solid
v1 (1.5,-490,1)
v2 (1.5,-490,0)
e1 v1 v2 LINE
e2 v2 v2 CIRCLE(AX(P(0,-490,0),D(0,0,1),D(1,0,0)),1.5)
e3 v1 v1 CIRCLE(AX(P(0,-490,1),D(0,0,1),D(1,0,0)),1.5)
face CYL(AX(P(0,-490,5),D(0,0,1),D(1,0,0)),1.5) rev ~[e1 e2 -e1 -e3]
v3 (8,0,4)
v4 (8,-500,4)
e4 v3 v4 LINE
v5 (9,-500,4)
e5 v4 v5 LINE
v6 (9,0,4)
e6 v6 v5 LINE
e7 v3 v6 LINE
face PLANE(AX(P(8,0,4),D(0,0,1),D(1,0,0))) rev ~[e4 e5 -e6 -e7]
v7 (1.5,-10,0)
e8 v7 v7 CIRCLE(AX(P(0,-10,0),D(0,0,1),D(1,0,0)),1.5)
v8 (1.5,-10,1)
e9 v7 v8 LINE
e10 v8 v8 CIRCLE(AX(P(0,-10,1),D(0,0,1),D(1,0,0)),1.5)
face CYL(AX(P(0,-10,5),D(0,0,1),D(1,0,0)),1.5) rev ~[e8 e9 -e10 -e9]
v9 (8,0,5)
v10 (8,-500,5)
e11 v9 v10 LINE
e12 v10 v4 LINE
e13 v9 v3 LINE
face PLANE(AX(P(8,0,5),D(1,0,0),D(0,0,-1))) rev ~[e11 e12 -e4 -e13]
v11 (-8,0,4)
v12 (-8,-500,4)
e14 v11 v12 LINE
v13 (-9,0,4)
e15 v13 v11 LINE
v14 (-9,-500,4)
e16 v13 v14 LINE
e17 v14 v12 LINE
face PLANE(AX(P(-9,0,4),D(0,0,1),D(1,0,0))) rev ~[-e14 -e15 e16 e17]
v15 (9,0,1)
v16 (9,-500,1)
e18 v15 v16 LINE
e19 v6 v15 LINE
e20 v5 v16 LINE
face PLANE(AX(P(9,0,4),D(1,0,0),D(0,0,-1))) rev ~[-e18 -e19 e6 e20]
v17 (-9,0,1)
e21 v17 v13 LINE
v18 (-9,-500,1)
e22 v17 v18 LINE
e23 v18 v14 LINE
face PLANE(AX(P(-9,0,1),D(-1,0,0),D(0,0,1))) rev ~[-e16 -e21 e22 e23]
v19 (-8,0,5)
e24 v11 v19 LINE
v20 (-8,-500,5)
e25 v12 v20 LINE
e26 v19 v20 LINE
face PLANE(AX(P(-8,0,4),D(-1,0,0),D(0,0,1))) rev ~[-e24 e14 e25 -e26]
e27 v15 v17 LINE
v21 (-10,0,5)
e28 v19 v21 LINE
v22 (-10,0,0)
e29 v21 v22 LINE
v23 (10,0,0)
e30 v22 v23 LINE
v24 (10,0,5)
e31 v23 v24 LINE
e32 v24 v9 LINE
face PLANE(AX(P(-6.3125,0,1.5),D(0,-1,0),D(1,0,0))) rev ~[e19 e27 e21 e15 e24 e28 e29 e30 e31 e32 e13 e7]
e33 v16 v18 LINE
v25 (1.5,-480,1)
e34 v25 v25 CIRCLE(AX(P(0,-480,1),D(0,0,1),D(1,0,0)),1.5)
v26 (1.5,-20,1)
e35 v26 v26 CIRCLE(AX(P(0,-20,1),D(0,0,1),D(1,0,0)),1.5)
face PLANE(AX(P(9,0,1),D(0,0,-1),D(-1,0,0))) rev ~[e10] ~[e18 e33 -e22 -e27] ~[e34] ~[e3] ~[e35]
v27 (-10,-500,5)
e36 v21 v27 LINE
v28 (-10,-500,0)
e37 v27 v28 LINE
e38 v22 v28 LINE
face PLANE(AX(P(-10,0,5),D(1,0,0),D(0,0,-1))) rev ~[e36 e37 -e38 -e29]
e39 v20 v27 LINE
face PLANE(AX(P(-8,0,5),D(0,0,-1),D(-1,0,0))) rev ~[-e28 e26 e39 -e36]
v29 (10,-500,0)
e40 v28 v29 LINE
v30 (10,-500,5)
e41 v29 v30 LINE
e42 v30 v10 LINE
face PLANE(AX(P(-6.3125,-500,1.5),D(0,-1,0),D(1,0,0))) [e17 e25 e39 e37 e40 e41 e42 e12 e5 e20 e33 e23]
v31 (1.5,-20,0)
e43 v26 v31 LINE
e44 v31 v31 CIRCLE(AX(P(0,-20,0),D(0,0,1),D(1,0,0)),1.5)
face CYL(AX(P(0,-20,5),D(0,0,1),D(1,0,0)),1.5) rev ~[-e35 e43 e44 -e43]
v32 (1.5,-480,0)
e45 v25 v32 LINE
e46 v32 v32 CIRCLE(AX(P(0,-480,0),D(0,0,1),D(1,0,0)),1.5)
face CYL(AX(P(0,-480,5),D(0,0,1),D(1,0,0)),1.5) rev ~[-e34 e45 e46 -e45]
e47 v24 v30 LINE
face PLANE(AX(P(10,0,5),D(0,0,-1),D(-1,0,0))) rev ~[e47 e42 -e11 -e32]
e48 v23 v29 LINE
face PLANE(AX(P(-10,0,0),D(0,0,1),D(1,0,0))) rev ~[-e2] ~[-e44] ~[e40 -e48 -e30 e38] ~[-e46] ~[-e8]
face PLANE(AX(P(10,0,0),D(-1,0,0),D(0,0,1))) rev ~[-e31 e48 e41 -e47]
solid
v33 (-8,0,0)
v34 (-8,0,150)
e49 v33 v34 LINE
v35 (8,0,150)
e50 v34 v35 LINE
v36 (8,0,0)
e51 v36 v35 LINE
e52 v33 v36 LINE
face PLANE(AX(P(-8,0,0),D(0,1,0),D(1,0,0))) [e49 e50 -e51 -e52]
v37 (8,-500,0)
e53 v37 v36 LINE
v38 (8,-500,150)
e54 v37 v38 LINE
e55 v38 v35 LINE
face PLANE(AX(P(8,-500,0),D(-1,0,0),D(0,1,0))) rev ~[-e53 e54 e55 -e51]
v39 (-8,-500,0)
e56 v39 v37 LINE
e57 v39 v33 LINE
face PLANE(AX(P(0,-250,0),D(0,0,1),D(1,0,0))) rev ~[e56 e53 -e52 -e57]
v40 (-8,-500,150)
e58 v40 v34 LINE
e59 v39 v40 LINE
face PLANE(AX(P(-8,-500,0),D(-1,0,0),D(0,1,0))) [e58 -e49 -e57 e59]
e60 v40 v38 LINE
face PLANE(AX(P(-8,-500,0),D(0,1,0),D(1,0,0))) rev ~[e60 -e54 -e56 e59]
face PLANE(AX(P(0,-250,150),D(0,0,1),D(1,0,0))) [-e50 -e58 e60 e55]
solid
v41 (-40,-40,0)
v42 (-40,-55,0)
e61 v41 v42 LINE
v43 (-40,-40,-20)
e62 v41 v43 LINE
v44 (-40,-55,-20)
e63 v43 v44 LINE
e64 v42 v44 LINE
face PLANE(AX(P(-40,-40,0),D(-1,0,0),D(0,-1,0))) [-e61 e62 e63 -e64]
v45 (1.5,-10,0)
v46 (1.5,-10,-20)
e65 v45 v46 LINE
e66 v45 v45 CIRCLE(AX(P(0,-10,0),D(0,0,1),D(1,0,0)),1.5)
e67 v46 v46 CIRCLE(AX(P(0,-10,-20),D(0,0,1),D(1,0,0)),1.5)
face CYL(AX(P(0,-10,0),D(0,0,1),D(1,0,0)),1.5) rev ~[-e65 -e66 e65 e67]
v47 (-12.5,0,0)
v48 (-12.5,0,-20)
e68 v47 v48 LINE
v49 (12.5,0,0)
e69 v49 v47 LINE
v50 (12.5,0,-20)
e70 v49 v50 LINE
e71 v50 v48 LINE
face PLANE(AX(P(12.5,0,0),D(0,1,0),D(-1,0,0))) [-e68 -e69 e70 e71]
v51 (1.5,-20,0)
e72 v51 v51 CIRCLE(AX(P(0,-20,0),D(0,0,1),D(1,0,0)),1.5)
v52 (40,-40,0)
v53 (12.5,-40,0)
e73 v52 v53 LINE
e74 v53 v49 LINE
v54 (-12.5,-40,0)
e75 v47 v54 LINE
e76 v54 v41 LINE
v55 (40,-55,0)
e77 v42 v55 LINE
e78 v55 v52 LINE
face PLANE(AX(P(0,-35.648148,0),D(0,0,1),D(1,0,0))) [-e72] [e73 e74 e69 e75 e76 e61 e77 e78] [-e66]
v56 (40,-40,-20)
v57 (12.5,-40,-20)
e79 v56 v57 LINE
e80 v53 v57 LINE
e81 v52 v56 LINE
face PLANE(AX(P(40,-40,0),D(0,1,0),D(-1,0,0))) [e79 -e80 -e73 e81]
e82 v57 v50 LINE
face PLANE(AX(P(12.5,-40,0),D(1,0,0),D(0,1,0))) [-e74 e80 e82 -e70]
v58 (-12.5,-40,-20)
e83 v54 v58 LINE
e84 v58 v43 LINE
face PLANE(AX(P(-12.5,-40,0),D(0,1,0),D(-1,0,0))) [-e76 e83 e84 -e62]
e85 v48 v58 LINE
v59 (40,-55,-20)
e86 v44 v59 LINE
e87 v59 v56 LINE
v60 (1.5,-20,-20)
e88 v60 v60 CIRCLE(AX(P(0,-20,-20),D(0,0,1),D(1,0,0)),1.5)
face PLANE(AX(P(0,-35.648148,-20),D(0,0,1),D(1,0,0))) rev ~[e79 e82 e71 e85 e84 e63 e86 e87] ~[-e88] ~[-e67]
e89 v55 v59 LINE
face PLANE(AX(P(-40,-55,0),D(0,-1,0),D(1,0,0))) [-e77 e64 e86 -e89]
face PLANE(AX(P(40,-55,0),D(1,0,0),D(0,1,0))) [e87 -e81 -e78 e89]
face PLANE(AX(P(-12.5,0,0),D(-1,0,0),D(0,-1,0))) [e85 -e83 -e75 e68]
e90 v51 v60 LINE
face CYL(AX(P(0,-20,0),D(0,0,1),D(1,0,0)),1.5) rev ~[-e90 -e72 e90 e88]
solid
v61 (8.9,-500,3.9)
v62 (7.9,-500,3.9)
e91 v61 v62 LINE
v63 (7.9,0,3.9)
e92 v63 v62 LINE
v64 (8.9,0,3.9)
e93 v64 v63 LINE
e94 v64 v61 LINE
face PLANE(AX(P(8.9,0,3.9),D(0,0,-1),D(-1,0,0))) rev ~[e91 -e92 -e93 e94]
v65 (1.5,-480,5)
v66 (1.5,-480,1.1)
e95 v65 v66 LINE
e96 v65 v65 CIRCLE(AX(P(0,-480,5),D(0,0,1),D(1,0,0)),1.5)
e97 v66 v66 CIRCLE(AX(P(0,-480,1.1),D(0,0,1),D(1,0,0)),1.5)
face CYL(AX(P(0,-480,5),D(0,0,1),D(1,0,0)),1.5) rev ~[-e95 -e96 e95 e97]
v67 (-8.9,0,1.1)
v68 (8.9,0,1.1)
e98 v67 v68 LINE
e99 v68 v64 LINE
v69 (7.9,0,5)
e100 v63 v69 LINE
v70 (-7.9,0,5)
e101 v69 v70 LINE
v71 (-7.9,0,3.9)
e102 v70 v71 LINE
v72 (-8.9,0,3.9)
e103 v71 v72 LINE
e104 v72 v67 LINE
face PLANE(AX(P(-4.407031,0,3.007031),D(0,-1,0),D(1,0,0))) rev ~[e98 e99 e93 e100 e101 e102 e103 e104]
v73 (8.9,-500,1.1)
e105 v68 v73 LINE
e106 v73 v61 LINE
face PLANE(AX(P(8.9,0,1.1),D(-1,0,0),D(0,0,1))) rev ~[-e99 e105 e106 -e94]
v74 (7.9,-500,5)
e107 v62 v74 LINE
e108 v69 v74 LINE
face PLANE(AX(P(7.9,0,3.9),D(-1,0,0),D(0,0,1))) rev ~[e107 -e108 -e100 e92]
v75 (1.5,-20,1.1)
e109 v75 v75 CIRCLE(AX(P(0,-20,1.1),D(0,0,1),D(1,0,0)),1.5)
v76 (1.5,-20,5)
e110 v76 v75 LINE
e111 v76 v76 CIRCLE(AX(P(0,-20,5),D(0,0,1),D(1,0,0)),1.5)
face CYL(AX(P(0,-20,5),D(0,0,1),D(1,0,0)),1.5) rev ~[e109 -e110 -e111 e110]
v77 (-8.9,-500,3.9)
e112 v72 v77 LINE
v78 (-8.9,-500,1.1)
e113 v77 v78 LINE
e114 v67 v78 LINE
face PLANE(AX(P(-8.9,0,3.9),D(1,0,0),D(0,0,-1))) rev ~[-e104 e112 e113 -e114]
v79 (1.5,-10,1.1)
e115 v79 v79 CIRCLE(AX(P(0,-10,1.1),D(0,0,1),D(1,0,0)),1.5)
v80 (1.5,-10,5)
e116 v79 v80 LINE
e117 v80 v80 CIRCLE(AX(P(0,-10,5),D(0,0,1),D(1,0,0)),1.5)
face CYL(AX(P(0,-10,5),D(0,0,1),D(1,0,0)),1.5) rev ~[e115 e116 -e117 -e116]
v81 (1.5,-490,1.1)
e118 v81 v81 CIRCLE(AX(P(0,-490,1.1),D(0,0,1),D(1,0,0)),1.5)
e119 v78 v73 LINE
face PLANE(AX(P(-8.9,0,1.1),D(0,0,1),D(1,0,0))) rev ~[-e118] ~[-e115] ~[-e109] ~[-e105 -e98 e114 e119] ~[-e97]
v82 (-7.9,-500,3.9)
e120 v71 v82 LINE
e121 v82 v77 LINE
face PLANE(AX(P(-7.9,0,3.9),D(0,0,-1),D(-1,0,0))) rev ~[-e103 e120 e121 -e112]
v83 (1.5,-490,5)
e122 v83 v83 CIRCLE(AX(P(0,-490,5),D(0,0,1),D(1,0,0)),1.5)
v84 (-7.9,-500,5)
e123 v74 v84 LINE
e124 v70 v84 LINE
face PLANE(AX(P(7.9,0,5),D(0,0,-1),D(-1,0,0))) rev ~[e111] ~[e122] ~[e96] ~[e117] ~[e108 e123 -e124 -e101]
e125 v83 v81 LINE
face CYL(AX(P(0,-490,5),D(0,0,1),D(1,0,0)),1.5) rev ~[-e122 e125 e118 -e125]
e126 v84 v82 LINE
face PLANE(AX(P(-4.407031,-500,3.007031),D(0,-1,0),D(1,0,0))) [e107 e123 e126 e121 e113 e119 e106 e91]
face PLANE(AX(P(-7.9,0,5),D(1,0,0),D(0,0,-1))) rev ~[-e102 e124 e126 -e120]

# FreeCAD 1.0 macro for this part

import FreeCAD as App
import Part
import Sketcher

V = App.Vector


def add_polygon(sketch, points):
    """Adds a closed chain of lines whose ends are joined by coincident constraints."""
    first, n = sketch.GeometryCount, len(points)
    for a, b in zip(points, points[1:] + points[:1]):
        sketch.addGeometry(Part.LineSegment(App.Vector(*a, 0), App.Vector(*b, 0)), False)
    for i in range(n):
        sketch.addConstraint(Sketcher.Constraint("Coincident", first + i, 2, first + (i + 1) % n, 1))

doc = App.newDocument("Part")
params = doc.addObject("Spreadsheet::Sheet", "Params")
for row, (alias, value) in enumerate([
    ("sketch1_width", "2 mm"),
    ("sketch1_width2", "20 mm"),
    ("sketch1_width3", "1 mm"),
    ("sketch1_height", "5 mm"),
    ("sketch1_height2", "3 mm"),
    ("pad1_length", "500 mm"),
    ("sketch2_width", "1 mm"),
    ("sketch2_width2", "17.8 mm"),
    ("sketch2_height", "1.1 mm"),
    ("sketch2_height2", "2.8 mm"),
    ("pad2_length", "500 mm"),
    ("sketch3_diameter", "3 mm"),
    ("pad3_length", "15 mm"),
    ("sketch4_width", "16 mm"),
    ("sketch4_height", "500 mm"),
    ("pad4_length", "150 mm"),
    ("sketch5_diameter", "3 mm"),
    ("sketch5_width", "25 mm"),
    ("sketch5_width2", "80 mm"),
    ("sketch5_height", "15 mm"),
    ("sketch5_height2", "40 mm"),
    ("pad5_length", "20 mm"),
], start=1):
    params.set(f"A{row}", alias)
    params.set(f"B{row}", "=" + value)
    params.setAlias(f"B{row}", alias)

body = doc.addObject("PartDesign::Body", "Body")

sketch1 = doc.addObject("Sketcher::SketchObject", "Sketch")
body.addObject(sketch1)
sketch1.AttachmentSupport = (doc.XZ_Plane, [""])
sketch1.MapMode = "FlatFace"
add_polygon(sketch1, [(-8, 4), (-8, 5), (-10, 5), (-10, 0), (10, 0), (10, 5), (8, 5), (8, 4), (9, 4), (9, 1), (-9, 1), (-9, 4)])
sketch1.addConstraint([
    Sketcher.Constraint("Vertical", 0),
    Sketcher.Constraint("Horizontal", 1),
    Sketcher.Constraint("Vertical", 2),
    Sketcher.Constraint("Horizontal", 3),
    Sketcher.Constraint("Vertical", 4),
    Sketcher.Constraint("Horizontal", 5),
    Sketcher.Constraint("Vertical", 6),
    Sketcher.Constraint("Horizontal", 7),
    Sketcher.Constraint("Vertical", 8),
    Sketcher.Constraint("Horizontal", 9),
    Sketcher.Constraint("Vertical", 10),
    Sketcher.Constraint("Horizontal", 11),
    Sketcher.Constraint("Symmetric", 2, 2, 3, 2, -1, 1),
    Sketcher.Constraint("Symmetric", 0, 2, 5, 2, -2),
    Sketcher.Constraint("Symmetric", 7, 2, 10, 2, -2),
    Sketcher.Constraint("Equal", 11, 0),
    Sketcher.Constraint("DistanceX", 1, 2, 1, 1, 2.0),
    Sketcher.Constraint("DistanceX", 3, 1, 3, 2, 20.0),
    Sketcher.Constraint("DistanceX", 7, 1, 7, 2, 1.0),
    Sketcher.Constraint("DistanceY", 2, 2, 2, 1, 5.0),
    Sketcher.Constraint("DistanceY", 8, 2, 8, 1, 3.0),
])
sketch1.setExpression("Constraints[28]", "Params.sketch1_width")
sketch1.setExpression("Constraints[29]", "Params.sketch1_width2")
sketch1.setExpression("Constraints[30]", "Params.sketch1_width3")
sketch1.setExpression("Constraints[31]", "Params.sketch1_height")
sketch1.setExpression("Constraints[32]", "Params.sketch1_height2")
pad1 = doc.addObject("PartDesign::Pad", "Pad")
body.addObject(pad1)
pad1.Profile = sketch1
pad1.setExpression("Length", "Params.pad1_length")
body2 = doc.addObject("PartDesign::Body", "Body001")

sketch2 = doc.addObject("Sketcher::SketchObject", "Sketch001")
body2.addObject(sketch2)
sketch2.AttachmentSupport = (doc.getObject("XZ_Plane001"), [""])
sketch2.MapMode = "FlatFace"
add_polygon(sketch2, [(-7.9, 5), (-7.9, 3.9), (-8.9, 3.9), (-8.9, 1.1), (8.9, 1.1), (8.9, 3.9), (7.9, 3.9), (7.9, 5)])
sketch2.addConstraint([
    Sketcher.Constraint("Vertical", 0),
    Sketcher.Constraint("Horizontal", 1),
    Sketcher.Constraint("Vertical", 2),
    Sketcher.Constraint("Horizontal", 3),
    Sketcher.Constraint("Vertical", 4),
    Sketcher.Constraint("Horizontal", 5),
    Sketcher.Constraint("Vertical", 6),
    Sketcher.Constraint("Horizontal", 7),
    Sketcher.Constraint("Symmetric", 1, 2, 4, 2, -2),
    Sketcher.Constraint("Equal", 1, 5),
    Sketcher.Constraint("DistanceX", 1, 2, 1, 1, 1.0),
    Sketcher.Constraint("DistanceX", 3, 1, 3, 2, 17.8),
    Sketcher.Constraint("DistanceY", 0, 2, 0, 1, 1.1),
    Sketcher.Constraint("DistanceY", 2, 2, 2, 1, 2.8),
    Sketcher.Constraint("DistanceY", -1, 1, 6, 2, 5.0),
])
sketch2.setExpression("Constraints[18]", "Params.sketch2_width")
sketch2.setExpression("Constraints[19]", "Params.sketch2_width2")
sketch2.setExpression("Constraints[20]", "Params.sketch2_height")
sketch2.setExpression("Constraints[21]", "Params.sketch2_height2")
pad2 = doc.addObject("PartDesign::Pad", "Pad001")
body2.addObject(pad2)
pad2.Profile = sketch2
pad2.setExpression("Length", "Params.pad2_length")
body3 = doc.addObject("PartDesign::Body", "Body002")
body3.AllowCompound = True

sketch3 = doc.addObject("Sketcher::SketchObject", "Sketch002")
body3.addObject(sketch3)
sketch3.AttachmentSupport = (doc.getObject("XY_Plane002"), [""])
sketch3.MapMode = "FlatFace"
sketch3.AttachmentOffset = App.Placement(V(0, 0, 5), App.Rotation())
sketch3.addGeometry([
    Part.Circle(V(0, -490, 0), V(0, 0, 1), 1.5),
    Part.Circle(V(0, -480, 0), V(0, 0, 1), 1.5),
    Part.Circle(V(0, -20, 0), V(0, 0, 1), 1.5),
    Part.Circle(V(0, -10, 0), V(0, 0, 1), 1.5),
], False)
sketch3.addConstraint([
    Sketcher.Constraint("Equal", 0, 1),
    Sketcher.Constraint("Equal", 1, 2),
    Sketcher.Constraint("Equal", 2, 3),
    Sketcher.Constraint("PointOnObject", 0, 3, -2),
    Sketcher.Constraint("PointOnObject", 1, 3, -2),
    Sketcher.Constraint("PointOnObject", 2, 3, -2),
    Sketcher.Constraint("PointOnObject", 3, 3, -2),
    Sketcher.Constraint("Diameter", 0, 3.0),
    Sketcher.Constraint("DistanceY", 0, 3, -1, 1, 490.0),
    Sketcher.Constraint("DistanceY", 1, 3, -1, 1, 480.0),
    Sketcher.Constraint("DistanceY", 2, 3, -1, 1, 20.0),
    Sketcher.Constraint("DistanceY", 3, 3, -1, 1, 10.0),
])
sketch3.setExpression("Constraints[7]", "Params.sketch3_diameter")
pad3 = doc.addObject("PartDesign::Pad", "Pad002")
body3.addObject(pad3)
pad3.Profile = sketch3
pad3.setExpression("Length", "Params.pad3_length")
pad3.Midplane = True
doc.recompute()

body4 = doc.addObject("PartDesign::Body", "Body003")
body4.BaseFeature = body3
boolean = doc.addObject("PartDesign::Boolean", "Boolean")
body2.addObject(boolean)
boolean.Type = "Cut"
boolean.addObjects([body4])
doc.recompute()

boolean2 = doc.addObject("PartDesign::Boolean", "Boolean001")
body.addObject(boolean2)
boolean2.Type = "Cut"
boolean2.addObjects([body3])
body5 = doc.addObject("PartDesign::Body", "Body004")

sketch4 = doc.addObject("Sketcher::SketchObject", "Sketch003")
body5.addObject(sketch4)
sketch4.AttachmentSupport = (doc.getObject("XY_Plane004"), [""])
sketch4.MapMode = "FlatFace"
add_polygon(sketch4, [(-8, 0), (-8, -500), (8, -500), (8, 0)])
sketch4.addConstraint([
    Sketcher.Constraint("Vertical", 0),
    Sketcher.Constraint("Horizontal", 1),
    Sketcher.Constraint("Vertical", 2),
    Sketcher.Constraint("Horizontal", 3),
    Sketcher.Constraint("Symmetric", 2, 2, 3, 2, -1, 1),
    Sketcher.Constraint("DistanceX", 1, 1, 1, 2, 16.0),
    Sketcher.Constraint("DistanceY", 0, 2, 0, 1, 500.0),
])
sketch4.setExpression("Constraints[9]", "Params.sketch4_width")
sketch4.setExpression("Constraints[10]", "Params.sketch4_height")
pad4 = doc.addObject("PartDesign::Pad", "Pad003")
body5.addObject(pad4)
pad4.Profile = sketch4
pad4.setExpression("Length", "Params.pad4_length")
body6 = doc.addObject("PartDesign::Body", "Body005")

sketch5 = doc.addObject("Sketcher::SketchObject", "Sketch004")
body6.addObject(sketch5)
sketch5.AttachmentSupport = (doc.getObject("XY_Plane005"), [""])
sketch5.MapMode = "FlatFace"
add_polygon(sketch5, [(40, -55), (40, -40), (12.5, -40), (12.5, 0), (-12.5, 0), (-12.5, -40), (-40, -40), (-40, -55)])
sketch5.addGeometry(Part.Circle(V(0, -20, 0), V(0, 0, 1), 1.5), False)
sketch5.addGeometry(Part.Circle(V(0, -10, 0), V(0, 0, 1), 1.5), False)
sketch5.addConstraint([
    Sketcher.Constraint("Vertical", 0),
    Sketcher.Constraint("Horizontal", 1),
    Sketcher.Constraint("Vertical", 2),
    Sketcher.Constraint("Horizontal", 3),
    Sketcher.Constraint("Vertical", 4),
    Sketcher.Constraint("Horizontal", 5),
    Sketcher.Constraint("Vertical", 6),
    Sketcher.Constraint("Horizontal", 7),
    Sketcher.Constraint("Equal", 8, 9),
    Sketcher.Constraint("Symmetric", 2, 2, 3, 2, -1, 1),
    Sketcher.Constraint("Symmetric", 0, 2, 5, 2, -2),
    Sketcher.Constraint("PointOnObject", 8, 3, -2),
    Sketcher.Constraint("PointOnObject", 9, 3, -2),
    Sketcher.Constraint("Diameter", 8, 3.0),
    Sketcher.Constraint("DistanceX", 3, 2, 3, 1, 25.0),
    Sketcher.Constraint("DistanceX", 7, 1, 7, 2, 80.0),
    Sketcher.Constraint("DistanceY", 0, 1, 0, 2, 15.0),
    Sketcher.Constraint("DistanceY", 2, 1, 2, 2, 40.0),
    Sketcher.Constraint("DistanceY", 8, 3, -1, 1, 20.0),
    Sketcher.Constraint("DistanceY", 9, 3, -1, 1, 10.0),
])
sketch5.setExpression("Constraints[21]", "Params.sketch5_diameter")
sketch5.setExpression("Constraints[22]", "Params.sketch5_width")
sketch5.setExpression("Constraints[23]", "Params.sketch5_width2")
sketch5.setExpression("Constraints[24]", "Params.sketch5_height")
sketch5.setExpression("Constraints[25]", "Params.sketch5_height2")
pad5 = doc.addObject("PartDesign::Pad", "Pad004")
body6.addObject(pad5)
pad5.Profile = sketch5
pad5.setExpression("Length", "Params.pad5_length")
pad5.Reversed = True

doc.recompute()
